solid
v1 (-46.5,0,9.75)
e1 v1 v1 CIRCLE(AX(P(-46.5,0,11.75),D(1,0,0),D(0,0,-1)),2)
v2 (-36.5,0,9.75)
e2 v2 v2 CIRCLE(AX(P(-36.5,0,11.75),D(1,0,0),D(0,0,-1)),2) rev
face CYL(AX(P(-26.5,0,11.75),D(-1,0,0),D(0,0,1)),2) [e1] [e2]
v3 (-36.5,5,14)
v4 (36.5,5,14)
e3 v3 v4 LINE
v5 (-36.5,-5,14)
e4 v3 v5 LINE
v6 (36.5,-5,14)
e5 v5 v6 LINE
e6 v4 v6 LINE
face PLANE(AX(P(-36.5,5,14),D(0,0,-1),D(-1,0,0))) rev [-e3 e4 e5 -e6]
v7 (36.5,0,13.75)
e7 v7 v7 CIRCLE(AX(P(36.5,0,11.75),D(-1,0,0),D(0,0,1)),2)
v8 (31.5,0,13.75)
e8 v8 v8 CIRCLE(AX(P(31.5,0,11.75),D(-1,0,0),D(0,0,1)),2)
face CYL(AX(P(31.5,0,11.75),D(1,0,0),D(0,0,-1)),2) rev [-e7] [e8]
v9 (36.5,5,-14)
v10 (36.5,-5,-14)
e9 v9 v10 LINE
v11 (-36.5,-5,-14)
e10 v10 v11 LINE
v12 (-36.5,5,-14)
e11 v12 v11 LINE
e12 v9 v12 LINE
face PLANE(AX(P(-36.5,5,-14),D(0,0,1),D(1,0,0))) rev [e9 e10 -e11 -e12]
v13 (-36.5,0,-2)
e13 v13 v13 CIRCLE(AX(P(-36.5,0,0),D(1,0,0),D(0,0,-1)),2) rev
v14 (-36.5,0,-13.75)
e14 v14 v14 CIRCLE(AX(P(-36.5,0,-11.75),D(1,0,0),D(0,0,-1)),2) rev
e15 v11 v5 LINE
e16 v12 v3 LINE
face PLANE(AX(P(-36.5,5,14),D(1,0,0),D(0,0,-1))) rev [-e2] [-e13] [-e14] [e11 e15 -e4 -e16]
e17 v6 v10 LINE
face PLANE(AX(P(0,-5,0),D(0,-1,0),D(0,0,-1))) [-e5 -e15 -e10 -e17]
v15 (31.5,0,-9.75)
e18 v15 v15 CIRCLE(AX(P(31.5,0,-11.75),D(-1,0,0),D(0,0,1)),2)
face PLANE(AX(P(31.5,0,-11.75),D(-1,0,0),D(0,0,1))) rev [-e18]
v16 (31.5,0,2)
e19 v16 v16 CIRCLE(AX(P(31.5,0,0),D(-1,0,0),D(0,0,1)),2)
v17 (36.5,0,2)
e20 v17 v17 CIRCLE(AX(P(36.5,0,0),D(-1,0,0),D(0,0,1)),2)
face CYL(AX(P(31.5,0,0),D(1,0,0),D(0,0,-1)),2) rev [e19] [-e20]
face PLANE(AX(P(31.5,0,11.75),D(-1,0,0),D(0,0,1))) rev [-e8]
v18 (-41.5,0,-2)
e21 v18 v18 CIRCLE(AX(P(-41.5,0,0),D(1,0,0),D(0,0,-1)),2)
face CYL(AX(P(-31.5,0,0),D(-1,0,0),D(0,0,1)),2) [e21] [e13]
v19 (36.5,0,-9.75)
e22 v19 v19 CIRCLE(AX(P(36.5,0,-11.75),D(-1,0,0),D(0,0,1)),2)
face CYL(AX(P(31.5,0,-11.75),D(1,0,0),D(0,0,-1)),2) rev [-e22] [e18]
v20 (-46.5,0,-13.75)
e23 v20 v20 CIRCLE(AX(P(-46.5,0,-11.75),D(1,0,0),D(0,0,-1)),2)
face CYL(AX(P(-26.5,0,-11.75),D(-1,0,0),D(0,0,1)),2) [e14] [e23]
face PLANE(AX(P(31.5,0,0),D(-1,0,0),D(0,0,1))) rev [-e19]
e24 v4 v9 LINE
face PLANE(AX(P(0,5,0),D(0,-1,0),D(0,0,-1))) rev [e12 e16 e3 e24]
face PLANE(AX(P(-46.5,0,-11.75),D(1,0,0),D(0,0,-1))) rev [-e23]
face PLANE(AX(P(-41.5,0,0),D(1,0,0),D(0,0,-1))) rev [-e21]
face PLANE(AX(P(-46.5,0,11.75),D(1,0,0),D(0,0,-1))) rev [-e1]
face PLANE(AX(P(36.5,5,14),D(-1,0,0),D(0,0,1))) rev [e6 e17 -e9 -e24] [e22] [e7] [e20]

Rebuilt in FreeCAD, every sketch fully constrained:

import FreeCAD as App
import Part
import Sketcher


def add_polygon(sketch, points):
    """Adds a closed chain of lines whose ends are joined by coincident constraints."""
    first, n = sketch.GeometryCount, len(points)
    for a, b in zip(points, points[1:] + points[:1]):
        sketch.addGeometry(Part.LineSegment(App.Vector(*a, 0), App.Vector(*b, 0)), False)
    for i in range(n):
        sketch.addConstraint(Sketcher.Constraint("Coincident", first + i, 2, first + (i + 1) % n, 1))

doc = App.newDocument("Part")
body = doc.addObject("PartDesign::Body", "Body")

# Sketch on XZ plane
sketch1 = body.newObject("Sketcher::SketchObject", "Sketch")
sketch1.AttachmentSupport = (doc.getObject("XZ_Plane"), [""])
sketch1.MapMode = "FlatFace"
add_polygon(sketch1, [(-36, -14), (-36, 14), (36, 14), (36, -14)])  # lines 0-3
sketch1.addConstraint(Sketcher.Constraint("Vertical", 0))
sketch1.addConstraint(Sketcher.Constraint("Horizontal", 1))
sketch1.addConstraint(Sketcher.Constraint("Vertical", 2))
sketch1.addConstraint(Sketcher.Constraint("Horizontal", 3))
sketch1.addConstraint(Sketcher.Constraint("Symmetric", 0, 2, 2, 2, -1, 1))
sketch1.addConstraint(Sketcher.Constraint("DistanceX", 1, 1, 1, 2, 73.0))
sketch1.addConstraint(Sketcher.Constraint("DistanceY", 0, 1, 0, 2, 28.0))
pad1 = body.newObject("PartDesign::Pad", "Pad")
pad1.Profile = sketch1
pad1.Length = 10
pad1.Midplane = True

# Sketch on YZ plane
sketch2 = body.newObject("Sketcher::SketchObject", "Sketch001")
sketch2.AttachmentSupport = (doc.getObject("YZ_Plane"), [""])
sketch2.MapMode = "FlatFace"
sketch2.AttachmentOffset = App.Placement(App.Vector(0, 0, 36.5), App.Rotation())
sketch2.addGeometry(Part.Circle(App.Vector(0, 0, 0), App.Vector(0, 0, 1), 2), False)
sketch2.addGeometry(Part.Circle(App.Vector(0, -11.8, 0), App.Vector(0, 0, 1), 2), False)
sketch2.addGeometry(Part.Circle(App.Vector(0, 11.8, 0), App.Vector(0, 0, 1), 2), False)
sketch2.addConstraint(Sketcher.Constraint("Coincident", 0, 3, -1, 1))
sketch2.addConstraint(Sketcher.Constraint("Equal", 0, 1))
sketch2.addConstraint(Sketcher.Constraint("Equal", 1, 2))
sketch2.addConstraint(Sketcher.Constraint("Symmetric", 1, 3, 2, 3, -1, 1))
sketch2.addConstraint(Sketcher.Constraint("PointOnObject", 1, 3, -2))
sketch2.addConstraint(Sketcher.Constraint("Diameter", 0, 4.0))
sketch2.addConstraint(Sketcher.Constraint("DistanceY", 1, 3, 2, 3, 23.5))
pocket1 = body.newObject("PartDesign::Pocket", "Pocket")
pocket1.Profile = sketch2
pocket1.Length = 5

# Sketch on YZ plane
sketch3 = body.newObject("Sketcher::SketchObject", "Sketch002")
sketch3.AttachmentSupport = (doc.getObject("YZ_Plane"), [""])
sketch3.MapMode = "FlatFace"
sketch3.AttachmentOffset = App.Placement(App.Vector(0, 0, -36.5), App.Rotation())
sketch3.addGeometry(Part.Circle(App.Vector(0, -11.8, 0), App.Vector(0, 0, 1), 2), False)
sketch3.addGeometry(Part.Circle(App.Vector(0, 11.8, 0), App.Vector(0, 0, 1), 2), False)
sketch3.addConstraint(Sketcher.Constraint("Equal", 0, 1))
sketch3.addConstraint(Sketcher.Constraint("Symmetric", 0, 3, 1, 3, -1, 1))
sketch3.addConstraint(Sketcher.Constraint("PointOnObject", 0, 3, -2))
sketch3.addConstraint(Sketcher.Constraint("Diameter", 0, 4.0))
sketch3.addConstraint(Sketcher.Constraint("DistanceY", 0, 3, 1, 3, 23.5))
pad2 = body.newObject("PartDesign::Pad", "Pad001")
pad2.Profile = sketch3
pad2.Length = 20
pad2.Midplane = True

# Sketch on YZ plane
sketch4 = body.newObject("Sketcher::SketchObject", "Sketch003")
sketch4.AttachmentSupport = (doc.getObject("YZ_Plane"), [""])
sketch4.MapMode = "FlatFace"
sketch4.AttachmentOffset = App.Placement(App.Vector(0, 0, -36.5), App.Rotation())
sketch4.addGeometry(Part.Circle(App.Vector(0, 0, 0), App.Vector(0, 0, 1), 2), False)
sketch4.addConstraint(Sketcher.Constraint("Coincident", 0, 3, -1, 1))
sketch4.addConstraint(Sketcher.Constraint("Diameter", 0, 4.0))
pad3 = body.newObject("PartDesign::Pad", "Pad002")
pad3.Profile = sketch4
pad3.Length = 10
pad3.Midplane = True

doc.recompute()
